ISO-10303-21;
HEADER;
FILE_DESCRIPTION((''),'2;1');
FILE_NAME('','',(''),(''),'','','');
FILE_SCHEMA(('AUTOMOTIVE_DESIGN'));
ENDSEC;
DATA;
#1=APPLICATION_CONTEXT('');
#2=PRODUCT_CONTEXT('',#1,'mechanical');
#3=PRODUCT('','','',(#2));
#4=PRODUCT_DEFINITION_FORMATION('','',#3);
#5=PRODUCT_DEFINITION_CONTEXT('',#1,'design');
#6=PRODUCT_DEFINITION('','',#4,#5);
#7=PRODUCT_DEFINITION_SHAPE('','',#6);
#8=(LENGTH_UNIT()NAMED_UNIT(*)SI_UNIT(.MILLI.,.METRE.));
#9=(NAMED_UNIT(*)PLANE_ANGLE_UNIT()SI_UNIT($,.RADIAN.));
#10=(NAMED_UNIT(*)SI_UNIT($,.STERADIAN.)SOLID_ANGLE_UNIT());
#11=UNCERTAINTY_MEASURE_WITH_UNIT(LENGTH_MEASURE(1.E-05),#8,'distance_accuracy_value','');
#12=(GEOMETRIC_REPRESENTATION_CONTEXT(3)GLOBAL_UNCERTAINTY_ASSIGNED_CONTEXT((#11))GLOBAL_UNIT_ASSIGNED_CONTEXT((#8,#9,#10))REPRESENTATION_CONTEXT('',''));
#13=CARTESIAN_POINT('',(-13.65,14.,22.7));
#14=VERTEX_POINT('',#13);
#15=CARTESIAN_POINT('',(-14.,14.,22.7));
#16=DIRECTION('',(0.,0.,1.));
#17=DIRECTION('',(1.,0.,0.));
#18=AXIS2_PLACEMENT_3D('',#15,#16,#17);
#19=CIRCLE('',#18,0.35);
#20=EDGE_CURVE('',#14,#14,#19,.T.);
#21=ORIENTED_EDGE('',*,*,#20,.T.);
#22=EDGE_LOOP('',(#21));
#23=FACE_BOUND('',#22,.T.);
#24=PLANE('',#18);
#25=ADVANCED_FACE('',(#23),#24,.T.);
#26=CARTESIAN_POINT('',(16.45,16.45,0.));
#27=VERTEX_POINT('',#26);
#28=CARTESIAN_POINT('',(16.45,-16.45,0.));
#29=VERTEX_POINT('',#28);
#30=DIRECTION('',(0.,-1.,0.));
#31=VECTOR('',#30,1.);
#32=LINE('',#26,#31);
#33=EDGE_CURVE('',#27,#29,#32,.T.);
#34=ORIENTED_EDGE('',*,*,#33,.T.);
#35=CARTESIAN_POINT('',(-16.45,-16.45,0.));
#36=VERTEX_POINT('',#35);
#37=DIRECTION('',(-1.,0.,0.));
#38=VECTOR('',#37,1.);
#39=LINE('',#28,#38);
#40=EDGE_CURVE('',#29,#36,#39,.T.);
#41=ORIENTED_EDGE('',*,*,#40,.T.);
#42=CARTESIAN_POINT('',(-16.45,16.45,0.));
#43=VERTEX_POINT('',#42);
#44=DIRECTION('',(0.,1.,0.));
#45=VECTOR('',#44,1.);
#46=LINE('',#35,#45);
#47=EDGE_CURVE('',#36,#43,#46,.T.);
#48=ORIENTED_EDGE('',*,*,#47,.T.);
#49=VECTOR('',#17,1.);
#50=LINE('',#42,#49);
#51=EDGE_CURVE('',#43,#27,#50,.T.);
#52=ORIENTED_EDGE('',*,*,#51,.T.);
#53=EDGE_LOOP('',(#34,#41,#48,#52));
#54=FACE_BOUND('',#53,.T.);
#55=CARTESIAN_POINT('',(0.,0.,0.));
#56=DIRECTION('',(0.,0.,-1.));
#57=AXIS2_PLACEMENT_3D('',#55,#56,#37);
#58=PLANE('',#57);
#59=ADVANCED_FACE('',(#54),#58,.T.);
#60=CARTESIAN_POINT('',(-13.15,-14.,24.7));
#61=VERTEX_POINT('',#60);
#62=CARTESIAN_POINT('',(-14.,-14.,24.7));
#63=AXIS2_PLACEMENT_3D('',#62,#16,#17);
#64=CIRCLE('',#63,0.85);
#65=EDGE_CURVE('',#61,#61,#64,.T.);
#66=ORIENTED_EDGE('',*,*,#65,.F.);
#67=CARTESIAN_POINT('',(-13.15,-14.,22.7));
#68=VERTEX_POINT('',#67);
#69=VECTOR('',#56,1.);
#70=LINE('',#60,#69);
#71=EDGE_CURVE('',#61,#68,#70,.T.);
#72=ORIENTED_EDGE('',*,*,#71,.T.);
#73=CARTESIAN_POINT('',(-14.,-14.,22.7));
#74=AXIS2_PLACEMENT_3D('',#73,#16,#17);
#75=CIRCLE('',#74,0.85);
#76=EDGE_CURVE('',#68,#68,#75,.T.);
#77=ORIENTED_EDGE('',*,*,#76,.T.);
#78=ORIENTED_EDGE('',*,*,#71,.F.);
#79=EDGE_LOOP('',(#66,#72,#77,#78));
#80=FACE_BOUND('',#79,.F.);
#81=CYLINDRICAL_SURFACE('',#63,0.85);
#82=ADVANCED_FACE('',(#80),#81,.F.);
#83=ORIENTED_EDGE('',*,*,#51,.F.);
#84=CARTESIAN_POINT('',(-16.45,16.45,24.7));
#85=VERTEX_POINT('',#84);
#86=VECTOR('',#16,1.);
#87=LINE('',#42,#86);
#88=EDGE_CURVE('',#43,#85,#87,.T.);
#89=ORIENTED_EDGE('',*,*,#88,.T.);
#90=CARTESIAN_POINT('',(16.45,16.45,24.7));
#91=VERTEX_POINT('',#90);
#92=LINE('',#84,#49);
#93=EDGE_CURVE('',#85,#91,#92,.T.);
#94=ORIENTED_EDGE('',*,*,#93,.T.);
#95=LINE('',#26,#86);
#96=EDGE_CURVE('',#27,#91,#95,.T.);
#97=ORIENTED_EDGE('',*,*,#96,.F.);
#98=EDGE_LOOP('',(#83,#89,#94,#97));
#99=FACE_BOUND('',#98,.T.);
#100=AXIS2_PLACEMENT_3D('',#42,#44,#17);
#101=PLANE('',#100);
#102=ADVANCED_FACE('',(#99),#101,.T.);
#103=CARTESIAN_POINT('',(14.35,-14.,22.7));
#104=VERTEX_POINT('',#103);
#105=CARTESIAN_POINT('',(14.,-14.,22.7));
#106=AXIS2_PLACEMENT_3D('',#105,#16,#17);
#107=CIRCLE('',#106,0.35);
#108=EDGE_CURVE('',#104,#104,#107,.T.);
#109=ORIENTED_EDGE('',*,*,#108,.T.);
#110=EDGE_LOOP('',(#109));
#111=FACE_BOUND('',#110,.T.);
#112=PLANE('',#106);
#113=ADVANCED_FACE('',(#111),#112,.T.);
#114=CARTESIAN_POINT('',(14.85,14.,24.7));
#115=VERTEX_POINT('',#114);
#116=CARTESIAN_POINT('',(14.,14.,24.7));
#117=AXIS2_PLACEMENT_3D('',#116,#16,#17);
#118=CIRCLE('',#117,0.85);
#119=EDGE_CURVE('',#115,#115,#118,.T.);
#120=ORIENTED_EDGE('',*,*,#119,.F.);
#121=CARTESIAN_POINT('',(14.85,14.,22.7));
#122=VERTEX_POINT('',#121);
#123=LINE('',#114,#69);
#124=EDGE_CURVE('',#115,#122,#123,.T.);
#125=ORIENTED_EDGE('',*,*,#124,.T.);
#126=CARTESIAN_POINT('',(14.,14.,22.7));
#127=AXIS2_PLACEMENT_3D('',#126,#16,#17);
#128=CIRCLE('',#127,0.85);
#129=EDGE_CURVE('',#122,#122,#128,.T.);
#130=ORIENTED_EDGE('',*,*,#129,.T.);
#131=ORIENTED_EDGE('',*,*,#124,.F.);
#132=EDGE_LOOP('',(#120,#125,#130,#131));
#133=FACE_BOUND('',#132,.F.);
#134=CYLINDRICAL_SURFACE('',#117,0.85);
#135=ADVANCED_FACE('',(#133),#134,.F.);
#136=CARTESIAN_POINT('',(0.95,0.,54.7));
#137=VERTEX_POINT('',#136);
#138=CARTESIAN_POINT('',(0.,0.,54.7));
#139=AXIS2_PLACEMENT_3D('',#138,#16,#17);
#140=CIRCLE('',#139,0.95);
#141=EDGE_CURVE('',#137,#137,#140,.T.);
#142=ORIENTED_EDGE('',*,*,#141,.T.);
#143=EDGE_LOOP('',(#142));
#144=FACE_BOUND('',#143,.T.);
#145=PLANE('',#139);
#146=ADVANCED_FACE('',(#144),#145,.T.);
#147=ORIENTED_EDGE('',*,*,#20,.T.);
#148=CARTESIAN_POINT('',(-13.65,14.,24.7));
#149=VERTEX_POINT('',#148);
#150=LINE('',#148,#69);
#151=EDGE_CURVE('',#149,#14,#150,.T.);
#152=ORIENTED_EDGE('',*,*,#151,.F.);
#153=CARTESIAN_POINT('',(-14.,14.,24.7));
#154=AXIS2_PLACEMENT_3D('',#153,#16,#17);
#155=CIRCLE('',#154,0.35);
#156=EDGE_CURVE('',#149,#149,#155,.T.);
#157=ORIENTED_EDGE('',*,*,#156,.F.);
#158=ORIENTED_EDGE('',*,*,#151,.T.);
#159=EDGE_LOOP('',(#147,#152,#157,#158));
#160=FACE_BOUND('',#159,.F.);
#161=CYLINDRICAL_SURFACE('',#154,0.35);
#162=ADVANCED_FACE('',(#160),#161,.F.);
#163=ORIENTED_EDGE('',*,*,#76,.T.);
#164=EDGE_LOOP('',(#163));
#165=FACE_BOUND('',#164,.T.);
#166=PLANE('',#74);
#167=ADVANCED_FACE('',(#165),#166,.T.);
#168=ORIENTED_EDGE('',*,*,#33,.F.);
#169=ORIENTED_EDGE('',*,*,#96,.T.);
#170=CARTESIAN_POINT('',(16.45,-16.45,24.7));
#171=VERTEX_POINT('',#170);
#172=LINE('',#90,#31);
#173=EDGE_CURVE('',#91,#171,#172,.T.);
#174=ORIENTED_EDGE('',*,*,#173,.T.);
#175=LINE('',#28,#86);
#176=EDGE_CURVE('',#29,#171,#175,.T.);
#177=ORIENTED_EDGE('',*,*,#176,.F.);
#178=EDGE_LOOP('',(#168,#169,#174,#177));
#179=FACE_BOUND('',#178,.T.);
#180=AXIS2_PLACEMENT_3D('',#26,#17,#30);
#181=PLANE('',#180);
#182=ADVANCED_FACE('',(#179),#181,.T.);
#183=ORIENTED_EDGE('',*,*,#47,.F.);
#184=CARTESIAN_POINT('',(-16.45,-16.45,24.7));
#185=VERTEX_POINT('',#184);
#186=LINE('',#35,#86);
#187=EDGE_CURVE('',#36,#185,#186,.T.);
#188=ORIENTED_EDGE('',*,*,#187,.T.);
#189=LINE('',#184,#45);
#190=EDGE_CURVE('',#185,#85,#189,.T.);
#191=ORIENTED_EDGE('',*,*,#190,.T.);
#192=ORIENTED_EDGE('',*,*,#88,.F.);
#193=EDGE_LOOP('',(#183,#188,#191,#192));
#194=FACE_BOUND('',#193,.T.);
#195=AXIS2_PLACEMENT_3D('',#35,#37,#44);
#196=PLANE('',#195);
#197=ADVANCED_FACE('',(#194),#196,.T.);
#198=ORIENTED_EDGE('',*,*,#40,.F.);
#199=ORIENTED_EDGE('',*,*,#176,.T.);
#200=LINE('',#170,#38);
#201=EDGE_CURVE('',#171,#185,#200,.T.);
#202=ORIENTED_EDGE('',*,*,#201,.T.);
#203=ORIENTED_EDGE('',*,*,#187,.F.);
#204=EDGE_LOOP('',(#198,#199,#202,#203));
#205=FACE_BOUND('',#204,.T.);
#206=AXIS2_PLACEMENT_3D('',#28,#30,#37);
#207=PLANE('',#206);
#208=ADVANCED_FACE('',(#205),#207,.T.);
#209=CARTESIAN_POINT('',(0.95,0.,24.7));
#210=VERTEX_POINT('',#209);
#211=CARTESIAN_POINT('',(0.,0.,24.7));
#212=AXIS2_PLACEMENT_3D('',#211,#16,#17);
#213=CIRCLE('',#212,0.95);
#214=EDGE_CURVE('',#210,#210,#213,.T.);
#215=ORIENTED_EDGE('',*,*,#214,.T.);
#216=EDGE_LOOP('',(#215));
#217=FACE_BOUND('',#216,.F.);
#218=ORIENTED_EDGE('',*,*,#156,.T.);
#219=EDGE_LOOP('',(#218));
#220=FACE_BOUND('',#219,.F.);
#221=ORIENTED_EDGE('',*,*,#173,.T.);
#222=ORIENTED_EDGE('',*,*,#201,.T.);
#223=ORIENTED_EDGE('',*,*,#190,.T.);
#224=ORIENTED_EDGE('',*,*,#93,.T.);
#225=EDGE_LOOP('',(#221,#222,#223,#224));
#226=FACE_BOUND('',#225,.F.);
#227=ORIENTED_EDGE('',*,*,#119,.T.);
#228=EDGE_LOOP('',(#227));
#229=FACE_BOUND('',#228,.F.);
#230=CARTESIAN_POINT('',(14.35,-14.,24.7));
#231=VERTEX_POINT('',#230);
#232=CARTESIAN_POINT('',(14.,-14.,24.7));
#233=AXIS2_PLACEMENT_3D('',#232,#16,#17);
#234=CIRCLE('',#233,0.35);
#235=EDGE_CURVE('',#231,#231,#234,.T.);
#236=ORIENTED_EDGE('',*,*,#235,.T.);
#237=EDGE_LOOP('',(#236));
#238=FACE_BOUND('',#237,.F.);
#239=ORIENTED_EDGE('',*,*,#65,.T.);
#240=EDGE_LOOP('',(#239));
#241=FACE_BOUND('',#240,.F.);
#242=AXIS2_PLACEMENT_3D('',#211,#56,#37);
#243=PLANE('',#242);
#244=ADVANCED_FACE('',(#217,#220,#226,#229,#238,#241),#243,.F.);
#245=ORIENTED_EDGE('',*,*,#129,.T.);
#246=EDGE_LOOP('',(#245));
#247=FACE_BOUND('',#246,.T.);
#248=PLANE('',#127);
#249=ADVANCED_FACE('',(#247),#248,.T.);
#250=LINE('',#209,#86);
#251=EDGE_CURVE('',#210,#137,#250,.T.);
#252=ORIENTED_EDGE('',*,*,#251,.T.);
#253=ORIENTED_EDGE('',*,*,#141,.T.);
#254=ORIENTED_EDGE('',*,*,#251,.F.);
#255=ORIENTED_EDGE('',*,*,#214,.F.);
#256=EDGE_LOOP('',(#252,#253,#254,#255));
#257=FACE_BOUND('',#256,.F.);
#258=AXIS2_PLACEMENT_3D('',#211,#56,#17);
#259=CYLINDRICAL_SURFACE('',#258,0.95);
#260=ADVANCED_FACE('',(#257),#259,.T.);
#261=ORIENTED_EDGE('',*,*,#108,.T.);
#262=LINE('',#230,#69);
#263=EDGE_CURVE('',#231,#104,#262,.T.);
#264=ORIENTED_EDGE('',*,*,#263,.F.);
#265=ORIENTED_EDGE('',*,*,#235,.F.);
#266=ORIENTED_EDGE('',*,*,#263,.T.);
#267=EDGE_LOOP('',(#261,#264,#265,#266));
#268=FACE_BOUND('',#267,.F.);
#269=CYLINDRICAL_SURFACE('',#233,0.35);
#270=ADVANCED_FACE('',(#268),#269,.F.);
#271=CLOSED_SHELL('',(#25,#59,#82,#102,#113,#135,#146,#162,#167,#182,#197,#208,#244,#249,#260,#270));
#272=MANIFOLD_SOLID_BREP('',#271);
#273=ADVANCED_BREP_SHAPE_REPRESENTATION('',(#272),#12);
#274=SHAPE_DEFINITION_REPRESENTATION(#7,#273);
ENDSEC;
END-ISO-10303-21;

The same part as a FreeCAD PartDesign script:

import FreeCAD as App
import Part
import Sketcher

V = App.Vector


def add_polygon(sketch, points):
    """Adds a closed chain of lines whose ends are joined by coincident constraints."""
    first, n = sketch.GeometryCount, len(points)
    for a, b in zip(points, points[1:] + points[:1]):
        sketch.addGeometry(Part.LineSegment(App.Vector(*a, 0), App.Vector(*b, 0)), False)
    for i in range(n):
        sketch.addConstraint(Sketcher.Constraint("Coincident", first + i, 2, first + (i + 1) % n, 1))

doc = App.newDocument("Part")
body = doc.addObject("PartDesign::Body", "Body")

# Sketch on XY plane
sketch1 = doc.addObject("Sketcher::SketchObject", "Sketch")
body.addObject(sketch1)
sketch1.AttachmentSupport = (doc.XY_Plane, [""])
sketch1.MapMode = "FlatFace"
add_polygon(sketch1, [(-16, -16), (16, -16), (16, 16), (-16, 16)])  # lines 0-3
sketch1.addConstraint(Sketcher.Constraint("Horizontal", 0))
sketch1.addConstraint(Sketcher.Constraint("Vertical", 1))
sketch1.addConstraint(Sketcher.Constraint("Horizontal", 2))
sketch1.addConstraint(Sketcher.Constraint("Vertical", 3))
sketch1.addConstraint(Sketcher.Constraint("Symmetric", 0, 2, 2, 2, -1, 1))
sketch1.addConstraint(Sketcher.Constraint("Equal", 2, 1))
sketch1.addConstraint(Sketcher.Constraint("DistanceX", 0, 1, 0, 2, 32.9))
pad1 = doc.addObject("PartDesign::Pad", "Pad")
body.addObject(pad1)
pad1.Profile = sketch1
pad1.Length = 24.7

# Sketch on XY plane
sketch2 = doc.addObject("Sketcher::SketchObject", "Sketch001")
body.addObject(sketch2)
sketch2.AttachmentSupport = (doc.XY_Plane, [""])
sketch2.MapMode = "FlatFace"
sketch2.AttachmentOffset = App.Placement(V(0, 0, 24.7), App.Rotation())
sketch2.addGeometry(Part.Circle(V(-14, 14, 0), V(0, 0, 1), 0.35), False)
sketch2.addGeometry(Part.Circle(V(14, 14, 0), V(0, 0, 1), 0.85), False)
sketch2.addGeometry(Part.Circle(V(-14, -14, 0), V(0, 0, 1), 0.85), False)
sketch2.addGeometry(Part.Circle(V(14, -14, 0), V(0, 0, 1), 0.35), False)
sketch2.addConstraint(Sketcher.Constraint("Equal", 1, 2))
sketch2.addConstraint(Sketcher.Constraint("Equal", 0, 3))
sketch2.addConstraint(Sketcher.Constraint("Symmetric", 1, 3, 2, 3, -1, 1))
sketch2.addConstraint(Sketcher.Constraint("Symmetric", 0, 3, 3, 3, -1, 1))
sketch2.addConstraint(Sketcher.Constraint("Symmetric", 0, 3, 1, 3, -2))
sketch2.addConstraint(Sketcher.Constraint("Diameter", 0, 0.7))
sketch2.addConstraint(Sketcher.Constraint("Diameter", 1, 1.7))
sketch2.addConstraint(Sketcher.Constraint("DistanceX", 0, 3, -1, 1, 14.0))
sketch2.addConstraint(Sketcher.Constraint("DistanceY", -1, 1, 0, 3, 14.0))
pocket1 = doc.addObject("PartDesign::Pocket", "Pocket")
body.addObject(pocket1)
pocket1.Profile = sketch2
pocket1.Length = 2

# Sketch on XY plane
sketch3 = doc.addObject("Sketcher::SketchObject", "Sketch002")
body.addObject(sketch3)
sketch3.AttachmentSupport = (doc.XY_Plane, [""])
sketch3.MapMode = "FlatFace"
sketch3.AttachmentOffset = App.Placement(V(0, 0, 24.7), App.Rotation())
sketch3.addGeometry(Part.Circle(V(0, 0, 0), V(0, 0, 1), 0.9), False)
sketch3.addConstraint(Sketcher.Constraint("Coincident", 0, 3, -1, 1))
sketch3.addConstraint(Sketcher.Constraint("Diameter", 0, 1.9))
pad2 = doc.addObject("PartDesign::Pad", "Pad001")
body.addObject(pad2)
pad2.Profile = sketch3
pad2.Length = 30

doc.recompute()
